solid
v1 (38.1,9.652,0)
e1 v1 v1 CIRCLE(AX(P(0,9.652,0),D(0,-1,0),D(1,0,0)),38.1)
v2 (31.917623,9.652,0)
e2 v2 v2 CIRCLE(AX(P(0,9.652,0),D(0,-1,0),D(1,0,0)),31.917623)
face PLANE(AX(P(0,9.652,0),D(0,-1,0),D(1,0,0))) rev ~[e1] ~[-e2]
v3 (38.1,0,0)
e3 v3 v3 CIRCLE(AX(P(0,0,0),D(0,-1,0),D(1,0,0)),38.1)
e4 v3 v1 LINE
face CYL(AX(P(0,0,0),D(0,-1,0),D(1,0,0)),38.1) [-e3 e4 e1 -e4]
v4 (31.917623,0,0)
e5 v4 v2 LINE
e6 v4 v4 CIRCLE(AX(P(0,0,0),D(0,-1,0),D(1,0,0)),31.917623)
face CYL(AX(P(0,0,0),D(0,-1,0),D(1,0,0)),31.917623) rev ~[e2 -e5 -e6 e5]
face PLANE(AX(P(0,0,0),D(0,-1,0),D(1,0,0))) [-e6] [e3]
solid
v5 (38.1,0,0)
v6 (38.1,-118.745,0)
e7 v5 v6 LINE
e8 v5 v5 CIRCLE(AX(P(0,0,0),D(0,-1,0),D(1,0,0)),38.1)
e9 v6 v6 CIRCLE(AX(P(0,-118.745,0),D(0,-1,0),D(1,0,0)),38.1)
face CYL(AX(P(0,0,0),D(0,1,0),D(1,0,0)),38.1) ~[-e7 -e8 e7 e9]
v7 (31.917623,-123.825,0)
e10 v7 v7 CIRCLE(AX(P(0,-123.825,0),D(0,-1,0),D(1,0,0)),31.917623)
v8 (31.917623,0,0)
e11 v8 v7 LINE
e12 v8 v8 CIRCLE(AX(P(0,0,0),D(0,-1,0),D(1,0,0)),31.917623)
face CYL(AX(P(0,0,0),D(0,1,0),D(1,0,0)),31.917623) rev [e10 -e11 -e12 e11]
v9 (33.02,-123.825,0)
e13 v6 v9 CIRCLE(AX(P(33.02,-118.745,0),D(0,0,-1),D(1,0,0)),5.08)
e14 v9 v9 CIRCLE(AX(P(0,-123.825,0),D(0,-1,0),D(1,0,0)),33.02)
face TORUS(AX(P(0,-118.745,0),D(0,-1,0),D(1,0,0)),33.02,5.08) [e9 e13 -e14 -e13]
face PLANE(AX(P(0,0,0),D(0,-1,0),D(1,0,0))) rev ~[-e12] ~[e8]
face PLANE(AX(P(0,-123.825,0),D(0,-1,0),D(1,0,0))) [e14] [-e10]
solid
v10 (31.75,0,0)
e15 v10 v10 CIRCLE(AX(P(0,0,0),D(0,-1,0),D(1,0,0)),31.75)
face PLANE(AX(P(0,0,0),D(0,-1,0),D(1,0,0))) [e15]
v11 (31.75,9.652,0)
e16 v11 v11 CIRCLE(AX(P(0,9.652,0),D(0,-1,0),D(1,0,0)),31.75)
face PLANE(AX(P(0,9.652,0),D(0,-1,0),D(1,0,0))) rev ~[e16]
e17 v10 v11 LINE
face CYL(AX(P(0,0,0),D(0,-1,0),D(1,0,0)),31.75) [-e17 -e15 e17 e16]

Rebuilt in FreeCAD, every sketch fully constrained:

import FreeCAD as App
import Part
import Sketcher

V = App.Vector
Q = App.Units.Quantity


def edges_at(feature, points):
    """Names of the edges that pass closest to the given points."""
    edges = feature.Shape.Edges
    near = lambda p: min(range(len(edges)), key=lambda i: edges[i].distToShape(Part.Vertex(*p))[0])
    return sorted({f"Edge{near(p) + 1}" for p in points})

doc = App.newDocument("Part")
params = doc.addObject("Spreadsheet::Sheet", "Params")
for row, (alias, value) in enumerate([
    ("sketch1_diameter", "3 in"),
    ("pad1_length", "4.875 in"),
    ("fillet_radius", "0.2 in"),
    ("sketch2_diameter", "2.5 in"),
    ("pad2_length", "0.38 in"),
    ("sketch3_diameter", "3 in"),
    ("pad3_length", "0.38 in"),
], start=1):
    params.set(f"A{row}", alias)
    params.set(f"B{row}", "=" + value)
    params.setAlias(f"B{row}", alias)

body = doc.addObject("PartDesign::Body", "Body")

sketch1 = body.newObject("Sketcher::SketchObject", "Sketch")
sketch1.AttachmentSupport = (doc.getObject("XZ_Plane"), [""])
sketch1.MapMode = "FlatFace"
sketch1.addGeometry([
    Part.Circle(V(0, 0, 0), V(0, 0, 1), 38.1),
    Part.Circle(V(0, 0, 0), V(0, 0, 1), 31.917623),
], False)
sketch1.addConstraint([
    Sketcher.Constraint("Coincident", 0, 3, -1, 1),
    Sketcher.Constraint("Coincident", 1, 3, -1, 1),
    Sketcher.Constraint("Diameter", 0, Q("3 in")),
    Sketcher.Constraint("Diameter", 1, 63.835245),
])
sketch1.setExpression("Constraints[2]", "Params.sketch1_diameter")
pad1 = body.newObject("PartDesign::Pad", "Pad")
pad1.Profile = sketch1
pad1.setExpression("Length", "Params.pad1_length")
doc.recompute()

fillet = body.newObject("PartDesign::Fillet", "Fillet")
fillet.Base = (pad1, edges_at(pad1, [(-38.1, -123.825, 0)]))
fillet.setExpression("Radius", "Params.fillet_radius")
body2 = doc.addObject("PartDesign::Body", "Body001")

sketch2 = body2.newObject("Sketcher::SketchObject", "Sketch001")
sketch2.AttachmentSupport = (doc.getObject("XZ_Plane001"), [""])
sketch2.MapMode = "FlatFace"
sketch2.addGeometry(Part.Circle(V(0, 0, 0), V(0, 0, 1), 31.75), False)
sketch2.addConstraint([
    Sketcher.Constraint("Coincident", 0, 3, -1, 1),
    Sketcher.Constraint("Diameter", 0, Q("2.5 in")),
])
sketch2.setExpression("Constraints[1]", "Params.sketch2_diameter")
pad2 = body2.newObject("PartDesign::Pad", "Pad001")
pad2.Profile = sketch2
pad2.setExpression("Length", "Params.pad2_length")
pad2.Reversed = True
body3 = doc.addObject("PartDesign::Body", "Body002")

sketch3 = body3.newObject("Sketcher::SketchObject", "Sketch002")
sketch3.AttachmentSupport = (doc.getObject("XZ_Plane002"), [""])
sketch3.MapMode = "FlatFace"
sketch3.addGeometry([
    Part.Circle(V(0, 0, 0), V(0, 0, 1), 38.1),
    Part.Circle(V(0, 0, 0), V(0, 0, 1), 31.917623),
], False)
sketch3.addConstraint([
    Sketcher.Constraint("Coincident", 0, 3, -1, 1),
    Sketcher.Constraint("Coincident", 1, 3, -1, 1),
    Sketcher.Constraint("Diameter", 0, Q("3 in")),
    Sketcher.Constraint("Diameter", 1, 63.835245),
])
sketch3.setExpression("Constraints[2]", "Params.sketch3_diameter")
pad3 = body3.newObject("PartDesign::Pad", "Pad002")
pad3.Profile = sketch3
pad3.setExpression("Length", "Params.pad3_length")
pad3.Reversed = True

doc.recompute()
